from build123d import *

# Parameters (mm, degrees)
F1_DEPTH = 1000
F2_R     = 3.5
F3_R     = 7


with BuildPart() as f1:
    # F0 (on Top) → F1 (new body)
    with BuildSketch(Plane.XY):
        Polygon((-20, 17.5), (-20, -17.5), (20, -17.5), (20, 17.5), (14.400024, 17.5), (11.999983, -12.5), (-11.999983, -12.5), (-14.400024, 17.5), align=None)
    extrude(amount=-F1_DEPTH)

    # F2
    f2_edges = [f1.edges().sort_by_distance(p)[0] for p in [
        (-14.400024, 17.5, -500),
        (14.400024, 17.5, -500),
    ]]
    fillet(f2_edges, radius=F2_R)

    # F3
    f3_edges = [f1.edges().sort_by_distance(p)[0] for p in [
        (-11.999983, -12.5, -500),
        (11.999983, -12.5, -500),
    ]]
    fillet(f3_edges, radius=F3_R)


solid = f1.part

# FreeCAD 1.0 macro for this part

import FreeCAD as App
import Part
import Sketcher

V = App.Vector


def edges_at(feature, points):
    """Names of the edges that pass closest to the given points."""
    edges = feature.Shape.Edges
    near = lambda p: min(range(len(edges)), key=lambda i: edges[i].distToShape(Part.Vertex(*p))[0])
    return sorted({f"Edge{near(p) + 1}" for p in points})

doc = App.newDocument("Part")
body = doc.addObject("PartDesign::Body", "Body")

# Sketch on XY plane
sketch1 = body.newObject("Sketcher::SketchObject", "Sketch")
sketch1.AttachmentSupport = (doc.getObject("XY_Plane"), [""])
sketch1.MapMode = "FlatFace"
sketch1.addGeometry([
    Part.LineSegment(V(-20, 18, 0), V(-20, -18, 0)),  # 0
    Part.LineSegment(V(-20, -18, 0), V(20, -18, 0)),  # 1
    Part.LineSegment(V(20, -18, 0), V(20, 18, 0)),  # 2
    Part.LineSegment(V(20, 18, 0), V(14, 18, 0)),  # 3
    Part.LineSegment(V(14, 18, 0), V(12, -12, 0)),  # 4
    Part.LineSegment(V(12, -12, 0), V(-12, -12, 0)),  # 5
    Part.LineSegment(V(-12, -12, 0), V(-14, 18, 0)),  # 6
    Part.LineSegment(V(-14, 18, 0), V(-20, 18, 0)),  # 7
], False)
sketch1.addConstraint([
    Sketcher.Constraint("Coincident", 0, 2, 1, 1),
    Sketcher.Constraint("Coincident", 1, 2, 2, 1),
    Sketcher.Constraint("Coincident", 2, 2, 3, 1),
    Sketcher.Constraint("Coincident", 3, 2, 4, 1),
    Sketcher.Constraint("Coincident", 4, 2, 5, 1),
    Sketcher.Constraint("Coincident", 5, 2, 6, 1),
    Sketcher.Constraint("Coincident", 6, 2, 7, 1),
    Sketcher.Constraint("Coincident", 7, 2, 0, 1),
    Sketcher.Constraint("Vertical", 0),
    Sketcher.Constraint("Horizontal", 1),
    Sketcher.Constraint("Vertical", 2),
    Sketcher.Constraint("Horizontal", 3),
    Sketcher.Constraint("Horizontal", 5),
    Sketcher.Constraint("Horizontal", 7),
    Sketcher.Constraint("Symmetric", 0, 2, 2, 2, -1, 1),
    Sketcher.Constraint("Symmetric", 3, 2, 6, 2, -2),
    Sketcher.Constraint("Equal", 4, 6),
    Sketcher.Constraint("DistanceX", 1, 1, 1, 2, 40.0),
    Sketcher.Constraint("DistanceY", 0, 2, 0, 1, 35.0),
    Sketcher.Constraint("DistanceY", 1, 2, 4, 2, 5.0),
    Sketcher.Constraint("Distance", 4, 30.09585),
    Sketcher.Constraint("DistanceX", 3, 2, 3, 1, 5.599976),
])
pad1 = body.newObject("PartDesign::Pad", "Pad")
pad1.Profile = sketch1
pad1.Length = 1000
pad1.Reversed = True
doc.recompute()

fillet = body.newObject("PartDesign::Fillet", "Fillet")
fillet.Base = (pad1, edges_at(pad1, [(-14.4, 17.5, -500), (14.4, 17.5, -500)]))
fillet.Radius = 3.5
doc.recompute()

fillet2 = body.newObject("PartDesign::Fillet", "Fillet001")
fillet2.Base = (fillet, edges_at(fillet, [(-12, -12.5, -500), (12, -12.5, -500)]))
fillet2.Radius = 7

doc.recompute()
